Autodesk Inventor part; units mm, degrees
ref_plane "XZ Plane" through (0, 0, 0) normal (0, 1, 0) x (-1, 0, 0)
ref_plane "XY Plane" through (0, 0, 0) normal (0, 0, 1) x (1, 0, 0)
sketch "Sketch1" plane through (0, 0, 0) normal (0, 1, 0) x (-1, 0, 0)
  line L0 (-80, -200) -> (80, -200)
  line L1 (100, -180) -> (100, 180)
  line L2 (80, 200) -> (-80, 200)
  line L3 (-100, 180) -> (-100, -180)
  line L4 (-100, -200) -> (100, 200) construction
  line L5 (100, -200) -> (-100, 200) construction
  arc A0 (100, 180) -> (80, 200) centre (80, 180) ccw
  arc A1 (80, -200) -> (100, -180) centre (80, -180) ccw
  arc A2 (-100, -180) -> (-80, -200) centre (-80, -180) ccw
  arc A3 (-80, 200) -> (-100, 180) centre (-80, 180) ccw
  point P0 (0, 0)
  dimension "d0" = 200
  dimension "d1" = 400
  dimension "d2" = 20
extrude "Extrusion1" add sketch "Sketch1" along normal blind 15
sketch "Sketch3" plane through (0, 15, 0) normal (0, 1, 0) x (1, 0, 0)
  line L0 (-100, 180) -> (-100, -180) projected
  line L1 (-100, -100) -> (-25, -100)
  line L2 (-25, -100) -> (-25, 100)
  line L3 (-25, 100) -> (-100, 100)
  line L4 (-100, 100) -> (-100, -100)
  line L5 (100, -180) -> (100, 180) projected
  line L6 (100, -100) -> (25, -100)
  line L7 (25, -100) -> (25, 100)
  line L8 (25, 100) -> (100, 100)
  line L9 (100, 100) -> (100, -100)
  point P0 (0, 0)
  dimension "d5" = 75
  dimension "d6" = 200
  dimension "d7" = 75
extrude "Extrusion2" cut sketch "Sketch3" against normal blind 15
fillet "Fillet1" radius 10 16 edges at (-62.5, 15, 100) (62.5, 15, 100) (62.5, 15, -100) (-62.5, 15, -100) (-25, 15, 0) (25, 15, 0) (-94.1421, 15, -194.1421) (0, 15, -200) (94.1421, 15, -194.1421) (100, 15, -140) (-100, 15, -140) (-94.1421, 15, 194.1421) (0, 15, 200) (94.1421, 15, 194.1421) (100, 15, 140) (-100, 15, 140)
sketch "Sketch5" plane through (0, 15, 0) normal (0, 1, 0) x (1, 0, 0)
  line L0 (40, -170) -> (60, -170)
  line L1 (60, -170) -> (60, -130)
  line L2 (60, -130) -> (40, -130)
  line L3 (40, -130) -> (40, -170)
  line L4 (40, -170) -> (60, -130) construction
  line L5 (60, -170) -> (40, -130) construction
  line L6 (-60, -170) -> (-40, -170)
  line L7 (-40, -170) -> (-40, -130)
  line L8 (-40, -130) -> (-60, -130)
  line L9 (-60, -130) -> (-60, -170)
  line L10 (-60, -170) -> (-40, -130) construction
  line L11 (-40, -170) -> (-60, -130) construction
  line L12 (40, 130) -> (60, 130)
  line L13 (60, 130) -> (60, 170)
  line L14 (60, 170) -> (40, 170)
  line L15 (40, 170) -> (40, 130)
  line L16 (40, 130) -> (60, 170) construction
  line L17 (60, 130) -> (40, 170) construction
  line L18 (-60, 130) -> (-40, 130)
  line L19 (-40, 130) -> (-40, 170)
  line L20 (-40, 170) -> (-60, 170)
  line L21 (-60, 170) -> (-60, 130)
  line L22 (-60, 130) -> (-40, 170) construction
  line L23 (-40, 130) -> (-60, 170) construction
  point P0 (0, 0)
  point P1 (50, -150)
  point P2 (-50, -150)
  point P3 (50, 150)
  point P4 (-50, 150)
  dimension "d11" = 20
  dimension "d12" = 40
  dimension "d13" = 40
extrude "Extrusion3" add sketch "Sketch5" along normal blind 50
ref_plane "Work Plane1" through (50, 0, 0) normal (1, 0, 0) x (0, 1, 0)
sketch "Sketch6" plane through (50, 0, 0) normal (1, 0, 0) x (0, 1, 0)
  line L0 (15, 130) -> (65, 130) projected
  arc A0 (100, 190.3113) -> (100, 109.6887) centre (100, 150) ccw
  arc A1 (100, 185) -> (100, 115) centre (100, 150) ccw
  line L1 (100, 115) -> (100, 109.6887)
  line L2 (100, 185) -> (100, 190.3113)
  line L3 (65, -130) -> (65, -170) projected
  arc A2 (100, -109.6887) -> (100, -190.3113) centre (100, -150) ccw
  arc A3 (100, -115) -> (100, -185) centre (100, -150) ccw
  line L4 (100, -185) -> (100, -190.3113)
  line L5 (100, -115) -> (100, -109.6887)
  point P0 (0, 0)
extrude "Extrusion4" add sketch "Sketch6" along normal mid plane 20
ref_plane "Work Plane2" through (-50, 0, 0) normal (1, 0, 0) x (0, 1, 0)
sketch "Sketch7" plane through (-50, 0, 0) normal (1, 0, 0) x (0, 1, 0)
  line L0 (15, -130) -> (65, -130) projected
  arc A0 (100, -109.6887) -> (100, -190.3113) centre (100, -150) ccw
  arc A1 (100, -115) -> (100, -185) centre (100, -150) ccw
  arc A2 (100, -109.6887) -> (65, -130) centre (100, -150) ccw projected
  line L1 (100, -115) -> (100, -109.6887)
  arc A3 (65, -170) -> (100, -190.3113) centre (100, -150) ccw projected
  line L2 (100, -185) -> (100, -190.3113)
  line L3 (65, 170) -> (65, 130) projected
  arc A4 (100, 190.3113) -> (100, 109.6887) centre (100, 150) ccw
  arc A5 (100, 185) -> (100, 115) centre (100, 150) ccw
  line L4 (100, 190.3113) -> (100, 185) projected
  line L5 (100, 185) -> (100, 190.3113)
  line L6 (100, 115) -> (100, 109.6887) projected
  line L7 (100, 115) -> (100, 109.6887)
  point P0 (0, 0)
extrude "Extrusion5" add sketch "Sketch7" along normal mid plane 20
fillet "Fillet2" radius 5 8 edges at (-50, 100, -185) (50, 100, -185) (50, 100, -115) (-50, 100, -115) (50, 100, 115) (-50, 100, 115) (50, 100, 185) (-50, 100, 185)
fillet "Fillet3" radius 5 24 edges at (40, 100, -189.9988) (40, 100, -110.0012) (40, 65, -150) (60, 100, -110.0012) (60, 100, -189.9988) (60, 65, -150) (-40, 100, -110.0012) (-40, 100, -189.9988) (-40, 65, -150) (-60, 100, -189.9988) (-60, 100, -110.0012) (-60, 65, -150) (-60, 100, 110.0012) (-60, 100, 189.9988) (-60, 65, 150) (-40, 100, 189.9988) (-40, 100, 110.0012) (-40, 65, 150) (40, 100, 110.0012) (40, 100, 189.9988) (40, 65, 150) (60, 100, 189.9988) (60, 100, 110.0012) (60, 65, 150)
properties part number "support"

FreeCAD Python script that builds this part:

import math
import FreeCAD as App
import Part
import Sketcher
from FreeCAD import Vector


def edges_at(feature, points):
    """Names of the edges that pass closest to the given points."""
    edges = feature.Shape.Edges
    near = lambda p: min(range(len(edges)), key=lambda i: edges[i].distToShape(Part.Vertex(*p))[0])
    return sorted({f"Edge{near(p) + 1}" for p in points})

doc = App.newDocument("Part")
body = doc.addObject("PartDesign::Body", "Body")

sketch1 = body.newObject("Sketcher::SketchObject", "Sketch")
sketch1.AttachmentSupport = (doc.getObject("XZ_Plane"), [""])
sketch1.MapMode = "FlatFace"
sketch1.addGeometry([
    Part.ArcOfCircle(Part.Circle(Vector(80, -180, 0), Vector(0, 0, 1), 20), math.radians(-90), math.radians(0)),
    Part.LineSegment(Vector(80, -200, 0), Vector(-80, -200, 0)),
    Part.ArcOfCircle(Part.Circle(Vector(-80, -180, 0), Vector(0, 0, 1), 20), math.radians(180), math.radians(270)),
    Part.LineSegment(Vector(-100, -180, 0), Vector(-100, 180, 0)),
    Part.ArcOfCircle(Part.Circle(Vector(-80, 180, 0), Vector(0, 0, 1), 20), math.radians(90), math.radians(180)),
    Part.LineSegment(Vector(-80, 200, 0), Vector(80, 200, 0)),
    Part.ArcOfCircle(Part.Circle(Vector(80, 180, 0), Vector(0, 0, 1), 20), math.radians(0), math.radians(90)),
    Part.LineSegment(Vector(100, 180, 0), Vector(100, -180, 0)),
], False)
sketch1.addConstraint([
    Sketcher.Constraint("Tangent", 0, 1, 1, 1),
    Sketcher.Constraint("Tangent", 1, 2, 2, 2),
    Sketcher.Constraint("Tangent", 2, 1, 3, 1),
    Sketcher.Constraint("Tangent", 3, 2, 4, 2),
    Sketcher.Constraint("Tangent", 4, 1, 5, 1),
    Sketcher.Constraint("Tangent", 5, 2, 6, 2),
    Sketcher.Constraint("Tangent", 6, 1, 7, 1),
    Sketcher.Constraint("Tangent", 7, 2, 0, 2),
    Sketcher.Constraint("Horizontal", 1),
    Sketcher.Constraint("Vertical", 3),
    Sketcher.Constraint("Horizontal", 5),
    Sketcher.Constraint("Vertical", 7),
    Sketcher.Constraint("Equal", 0, 2),
    Sketcher.Constraint("Equal", 2, 4),
    Sketcher.Constraint("Equal", 4, 6),
    Sketcher.Constraint("Symmetric", 0, 3, 4, 3, -1, 1),
    Sketcher.Constraint("Radius", 0, 20.0),
    Sketcher.Constraint("DistanceY", 0, 1, -1, 1, 200.0),
    Sketcher.Constraint("DistanceX", 3, 2, 6, 1, 200.0),
])
pad1 = body.newObject("PartDesign::Pad", "Pad")
pad1.Profile = sketch1
pad1.Length = 15
pad1.Reversed = True

sketch2 = body.newObject("Sketcher::SketchObject", "Sketch001")
sketch2.AttachmentSupport = (doc.getObject("XZ_Plane"), [""])
sketch2.MapMode = "FlatFace"
sketch2.AttachmentOffset = App.Placement(Vector(0, 0, -15), App.Rotation())
sketch2.addGeometry([
    Part.LineSegment(Vector(-25, -100, 0), Vector(-100, -100, 0)),
    Part.LineSegment(Vector(-100, -100, 0), Vector(-100, 100, 0)),
    Part.LineSegment(Vector(-100, 100, 0), Vector(-25, 100, 0)),
    Part.LineSegment(Vector(-25, 100, 0), Vector(-25, -100, 0)),
    Part.LineSegment(Vector(25, 100, 0), Vector(100, 100, 0)),
    Part.LineSegment(Vector(100, 100, 0), Vector(100, -100, 0)),
    Part.LineSegment(Vector(100, -100, 0), Vector(25, -100, 0)),
    Part.LineSegment(Vector(25, -100, 0), Vector(25, 100, 0)),
], False)
sketch2.addConstraint([
    Sketcher.Constraint("Coincident", 0, 2, 1, 1),
    Sketcher.Constraint("Coincident", 1, 2, 2, 1),
    Sketcher.Constraint("Coincident", 2, 2, 3, 1),
    Sketcher.Constraint("Coincident", 3, 2, 0, 1),
    Sketcher.Constraint("Coincident", 4, 2, 5, 1),
    Sketcher.Constraint("Coincident", 5, 2, 6, 1),
    Sketcher.Constraint("Coincident", 6, 2, 7, 1),
    Sketcher.Constraint("Coincident", 7, 2, 4, 1),
    Sketcher.Constraint("Horizontal", 0),
    Sketcher.Constraint("Vertical", 1),
    Sketcher.Constraint("Horizontal", 2),
    Sketcher.Constraint("Vertical", 3),
    Sketcher.Constraint("Horizontal", 4),
    Sketcher.Constraint("Vertical", 5),
    Sketcher.Constraint("Horizontal", 6),
    Sketcher.Constraint("Vertical", 7),
    Sketcher.Constraint("Symmetric", 0, 2, 4, 2, -1, 1),
    Sketcher.Constraint("Symmetric", 2, 2, 6, 2, -1, 1),
    Sketcher.Constraint("Horizontal", 2, 2, 4, 2),
    Sketcher.Constraint("DistanceX", 0, 2, 0, 1, 75.0),
    Sketcher.Constraint("DistanceY", 1, 1, 1, 2, 200.0),
    Sketcher.Constraint("DistanceX", 1, 2, 4, 2, 200.0),
])
pocket1 = body.newObject("PartDesign::Pocket", "Pocket")
pocket1.Profile = sketch2
pocket1.Length = 15
pocket1.Reversed = True
doc.recompute()

fillet = body.newObject("PartDesign::Fillet", "Fillet")
fillet.Base = (pocket1, edges_at(pocket1, [
    (-62.5, 15, 100),
    (62.5, 15, 100),
    (62.5, 15, -100),
    (-62.5, 15, -100),
    (-25, 15, 0),
    (25, 15, 0),
    (-94.142, 15, -194.142),
    (0, 15, -200),
    (94.142, 15, -194.142),
    (100, 15, -140),
    (-100, 15, -140),
    (-94.142, 15, 194.142),
    (0, 15, 200),
    (94.142, 15, 194.142),
    (100, 15, 140),
    (-100, 15, 140),
]))
fillet.Radius = 10

sketch3 = body.newObject("Sketcher::SketchObject", "Sketch002")
sketch3.AttachmentSupport = (doc.getObject("XZ_Plane"), [""])
sketch3.MapMode = "FlatFace"
sketch3.AttachmentOffset = App.Placement(Vector(0, 0, -15), App.Rotation())
sketch3.addGeometry([
    Part.LineSegment(Vector(40, 130, 0), Vector(40, 170, 0)),
    Part.LineSegment(Vector(40, 170, 0), Vector(60, 170, 0)),
    Part.LineSegment(Vector(60, 170, 0), Vector(60, 130, 0)),
    Part.LineSegment(Vector(60, 130, 0), Vector(40, 130, 0)),
    Part.LineSegment(Vector(-60, 130, 0), Vector(-60, 170, 0)),
    Part.LineSegment(Vector(-60, 170, 0), Vector(-40, 170, 0)),
    Part.LineSegment(Vector(-40, 170, 0), Vector(-40, 130, 0)),
    Part.LineSegment(Vector(-40, 130, 0), Vector(-60, 130, 0)),
    Part.LineSegment(Vector(40, -170, 0), Vector(40, -130, 0)),
    Part.LineSegment(Vector(40, -130, 0), Vector(60, -130, 0)),
    Part.LineSegment(Vector(60, -130, 0), Vector(60, -170, 0)),
    Part.LineSegment(Vector(60, -170, 0), Vector(40, -170, 0)),
    Part.LineSegment(Vector(-60, -170, 0), Vector(-60, -130, 0)),
    Part.LineSegment(Vector(-60, -130, 0), Vector(-40, -130, 0)),
    Part.LineSegment(Vector(-40, -130, 0), Vector(-40, -170, 0)),
    Part.LineSegment(Vector(-40, -170, 0), Vector(-60, -170, 0)),
], False)
sketch3.addConstraint([
    Sketcher.Constraint("Coincident", 0, 2, 1, 1),
    Sketcher.Constraint("Coincident", 1, 2, 2, 1),
    Sketcher.Constraint("Coincident", 2, 2, 3, 1),
    Sketcher.Constraint("Coincident", 3, 2, 0, 1),
    Sketcher.Constraint("Coincident", 4, 2, 5, 1),
    Sketcher.Constraint("Coincident", 5, 2, 6, 1),
    Sketcher.Constraint("Coincident", 6, 2, 7, 1),
    Sketcher.Constraint("Coincident", 7, 2, 4, 1),
    Sketcher.Constraint("Coincident", 8, 2, 9, 1),
    Sketcher.Constraint("Coincident", 9, 2, 10, 1),
    Sketcher.Constraint("Coincident", 10, 2, 11, 1),
    Sketcher.Constraint("Coincident", 11, 2, 8, 1),
    Sketcher.Constraint("Coincident", 12, 2, 13, 1),
    Sketcher.Constraint("Coincident", 13, 2, 14, 1),
    Sketcher.Constraint("Coincident", 14, 2, 15, 1),
    Sketcher.Constraint("Coincident", 15, 2, 12, 1),
    Sketcher.Constraint("Vertical", 0),
    Sketcher.Constraint("Horizontal", 1),
    Sketcher.Constraint("Vertical", 2),
    Sketcher.Constraint("Horizontal", 3),
    Sketcher.Constraint("Vertical", 4),
    Sketcher.Constraint("Horizontal", 5),
    Sketcher.Constraint("Vertical", 6),
    Sketcher.Constraint("Horizontal", 7),
    Sketcher.Constraint("Vertical", 8),
    Sketcher.Constraint("Horizontal", 9),
    Sketcher.Constraint("Vertical", 10),
    Sketcher.Constraint("Horizontal", 11),
    Sketcher.Constraint("Vertical", 12),
    Sketcher.Constraint("Horizontal", 13),
    Sketcher.Constraint("Vertical", 14),
    Sketcher.Constraint("Horizontal", 15),
    Sketcher.Constraint("Symmetric", 6, 2, 8, 2, -1, 1),
    Sketcher.Constraint("Symmetric", 4, 2, 10, 2, -1, 1),
    Sketcher.Constraint("Symmetric", 2, 2, 12, 2, -1, 1),
    Sketcher.Constraint("Symmetric", 0, 2, 14, 2, -1, 1),
    Sketcher.Constraint("Symmetric", 1, 2, 4, 2, -2),
    Sketcher.Constraint("Symmetric", 3, 2, 6, 2, -2),
    Sketcher.Constraint("DistanceX", 1, 1, 1, 2, 20.0),
    Sketcher.Constraint("DistanceY", 0, 1, 0, 2, 40.0),
    Sketcher.Constraint("DistanceX", -1, 1, 0, 2, 40.0),
    Sketcher.Constraint("DistanceY", -1, 1, 0, 2, 170.0),
])
pad2 = body.newObject("PartDesign::Pad", "Pad001")
pad2.Profile = sketch3
pad2.Length = 50
pad2.Reversed = True

sketch4 = body.newObject("Sketcher::SketchObject", "Sketch003")
sketch4.AttachmentSupport = (doc.getObject("YZ_Plane"), [""])
sketch4.MapMode = "FlatFace"
sketch4.AttachmentOffset = App.Placement(Vector(0, 0, 50), App.Rotation())
sketch4.addGeometry([
    Part.LineSegment(Vector(100, 185, 0), Vector(100, 190.3113, 0)),
    Part.ArcOfCircle(Part.Circle(Vector(100, 150, 0), Vector(0, 0, 1), 40.3113), math.radians(90), math.radians(270)),
    Part.LineSegment(Vector(100, 109.6887, 0), Vector(100, 115, 0)),
    Part.ArcOfCircle(Part.Circle(Vector(100, 150, 0), Vector(0, 0, 1), 35), math.radians(90), math.radians(270)),
    Part.ArcOfCircle(Part.Circle(Vector(100, -150, 0), Vector(0, 0, 1), 40.3113), math.radians(90), math.radians(270)),
    Part.LineSegment(Vector(100, -190.3113, 0), Vector(100, -185, 0)),
    Part.ArcOfCircle(Part.Circle(Vector(100, -150, 0), Vector(0, 0, 1), 35), math.radians(90), math.radians(270)),
    Part.LineSegment(Vector(100, -115, 0), Vector(100, -109.6887, 0)),
], False)
sketch4.addConstraint([
    Sketcher.Constraint("Coincident", 0, 2, 1, 1),
    Sketcher.Constraint("Coincident", 1, 2, 2, 1),
    Sketcher.Constraint("Coincident", 2, 2, 3, 2),
    Sketcher.Constraint("Coincident", 3, 1, 0, 1),
    Sketcher.Constraint("Coincident", 4, 2, 5, 1),
    Sketcher.Constraint("Coincident", 5, 2, 6, 2),
    Sketcher.Constraint("Coincident", 6, 1, 7, 1),
    Sketcher.Constraint("Coincident", 7, 2, 4, 1),
    Sketcher.Constraint("Vertical", 0),
    Sketcher.Constraint("Vertical", 2),
    Sketcher.Constraint("Vertical", 5),
    Sketcher.Constraint("Vertical", 7),
    Sketcher.Constraint("Coincident", 3, 3, 1, 3),
    Sketcher.Constraint("Coincident", 6, 3, 4, 3),
    Sketcher.Constraint("Equal", 1, 4),
    Sketcher.Constraint("Equal", 3, 6),
    Sketcher.Constraint("Symmetric", 1, 3, 4, 3, -1),
    Sketcher.Constraint("Vertical", 6, 3, 0, 2),
    Sketcher.Constraint("Vertical", 0, 2, 1, 2),
    Sketcher.Constraint("Vertical", 3, 1, 4, 2),
    Sketcher.Constraint("Vertical", 5, 2, 6, 1),
    Sketcher.Constraint("Radius", 3, 35.0),
    Sketcher.Constraint("DistanceX", -1, 1, 1, 3, 100.0),
    Sketcher.Constraint("DistanceY", -1, 1, 1, 3, 150.0),
    Sketcher.Constraint("Radius", 1, 40.3113),
])
pad3 = body.newObject("PartDesign::Pad", "Pad002")
pad3.Profile = sketch4
pad3.Length = 20
pad3.Midplane = True

sketch5 = body.newObject("Sketcher::SketchObject", "Sketch004")
sketch5.AttachmentSupport = (doc.getObject("YZ_Plane"), [""])
sketch5.MapMode = "FlatFace"
sketch5.AttachmentOffset = App.Placement(Vector(0, 0, -50), App.Rotation())
sketch5.addGeometry([
    Part.LineSegment(Vector(100, -115, 0), Vector(100, -109.6887, 0)),
    Part.ArcOfCircle(Part.Circle(Vector(100, -150, 0), Vector(0, 0, 1), 40.3113), math.radians(90), math.radians(270)),
    Part.LineSegment(Vector(100, -190.3113, 0), Vector(100, -185, 0)),
    Part.ArcOfCircle(Part.Circle(Vector(100, -150, 0), Vector(0, 0, 1), 35), math.radians(90), math.radians(270)),
    Part.ArcOfCircle(Part.Circle(Vector(100, 150, 0), Vector(0, 0, 1), 40.3113), math.radians(90), math.radians(270)),
    Part.LineSegment(Vector(100, 109.6887, 0), Vector(100, 115, 0)),
    Part.ArcOfCircle(Part.Circle(Vector(100, 150, 0), Vector(0, 0, 1), 35), math.radians(90), math.radians(270)),
    Part.LineSegment(Vector(100, 185, 0), Vector(100, 190.3113, 0)),
], False)
sketch5.addConstraint([
    Sketcher.Constraint("Coincident", 0, 2, 1, 1),
    Sketcher.Constraint("Coincident", 1, 2, 2, 1),
    Sketcher.Constraint("Coincident", 2, 2, 3, 2),
    Sketcher.Constraint("Coincident", 3, 1, 0, 1),
    Sketcher.Constraint("Coincident", 4, 2, 5, 1),
    Sketcher.Constraint("Coincident", 5, 2, 6, 2),
    Sketcher.Constraint("Coincident", 6, 1, 7, 1),
    Sketcher.Constraint("Coincident", 7, 2, 4, 1),
    Sketcher.Constraint("Vertical", 0),
    Sketcher.Constraint("Vertical", 2),
    Sketcher.Constraint("Vertical", 5),
    Sketcher.Constraint("Vertical", 7),
    Sketcher.Constraint("Coincident", 3, 3, 1, 3),
    Sketcher.Constraint("Coincident", 6, 3, 4, 3),
    Sketcher.Constraint("Equal", 1, 4),
    Sketcher.Constraint("Equal", 3, 6),
    Sketcher.Constraint("Symmetric", 1, 3, 4, 3, -1),
    Sketcher.Constraint("Vertical", 6, 3, 0, 2),
    Sketcher.Constraint("Vertical", 0, 2, 1, 2),
    Sketcher.Constraint("Vertical", 3, 1, 4, 2),
    Sketcher.Constraint("Vertical", 5, 2, 6, 1),
    Sketcher.Constraint("Radius", 3, 35.0),
    Sketcher.Constraint("DistanceX", -1, 1, 1, 3, 100.0),
    Sketcher.Constraint("DistanceY", 1, 3, -1, 1, 150.0),
    Sketcher.Constraint("Radius", 1, 40.3113),
])
pad4 = body.newObject("PartDesign::Pad", "Pad003")
pad4.Profile = sketch5
pad4.Length = 20
pad4.Midplane = True
doc.recompute()

fillet2 = body.newObject("PartDesign::Fillet", "Fillet001")
fillet2.Base = (pad4, edges_at(pad4, [
    (-50, 100, -185),
    (50, 100, -185),
    (50, 100, -115),
    (-50, 100, -115),
    (50, 100, 115),
    (-50, 100, 115),
    (50, 100, 185),
    (-50, 100, 185),
]))
fillet2.Radius = 5
doc.recompute()

fillet3 = body.newObject("PartDesign::Fillet", "Fillet002")
fillet3.Base = (fillet2, edges_at(fillet2, [
    (40, 100, -189.999),
    (40, 100, -110.001),
    (40, 65, -150),
    (60, 100, -110.001),
    (60, 100, -189.999),
    (60, 65, -150),
    (-40, 100, -110.001),
    (-40, 100, -189.999),
    (-40, 65, -150),
    (-60, 100, -189.999),
    (-60, 100, -110.001),
    (-60, 65, -150),
    (-60, 100, 110.001),
    (-60, 100, 189.999),
    (-60, 65, 150),
    (-40, 100, 189.999),
    (-40, 100, 110.001),
    (-40, 65, 150),
    (40, 100, 110.001),
    (40, 100, 189.999),
    (40, 65, 150),
    (60, 100, 189.999),
    (60, 100, 110.001),
    (60, 65, 150),
]))
fillet3.Radius = 5

doc.recompute()
